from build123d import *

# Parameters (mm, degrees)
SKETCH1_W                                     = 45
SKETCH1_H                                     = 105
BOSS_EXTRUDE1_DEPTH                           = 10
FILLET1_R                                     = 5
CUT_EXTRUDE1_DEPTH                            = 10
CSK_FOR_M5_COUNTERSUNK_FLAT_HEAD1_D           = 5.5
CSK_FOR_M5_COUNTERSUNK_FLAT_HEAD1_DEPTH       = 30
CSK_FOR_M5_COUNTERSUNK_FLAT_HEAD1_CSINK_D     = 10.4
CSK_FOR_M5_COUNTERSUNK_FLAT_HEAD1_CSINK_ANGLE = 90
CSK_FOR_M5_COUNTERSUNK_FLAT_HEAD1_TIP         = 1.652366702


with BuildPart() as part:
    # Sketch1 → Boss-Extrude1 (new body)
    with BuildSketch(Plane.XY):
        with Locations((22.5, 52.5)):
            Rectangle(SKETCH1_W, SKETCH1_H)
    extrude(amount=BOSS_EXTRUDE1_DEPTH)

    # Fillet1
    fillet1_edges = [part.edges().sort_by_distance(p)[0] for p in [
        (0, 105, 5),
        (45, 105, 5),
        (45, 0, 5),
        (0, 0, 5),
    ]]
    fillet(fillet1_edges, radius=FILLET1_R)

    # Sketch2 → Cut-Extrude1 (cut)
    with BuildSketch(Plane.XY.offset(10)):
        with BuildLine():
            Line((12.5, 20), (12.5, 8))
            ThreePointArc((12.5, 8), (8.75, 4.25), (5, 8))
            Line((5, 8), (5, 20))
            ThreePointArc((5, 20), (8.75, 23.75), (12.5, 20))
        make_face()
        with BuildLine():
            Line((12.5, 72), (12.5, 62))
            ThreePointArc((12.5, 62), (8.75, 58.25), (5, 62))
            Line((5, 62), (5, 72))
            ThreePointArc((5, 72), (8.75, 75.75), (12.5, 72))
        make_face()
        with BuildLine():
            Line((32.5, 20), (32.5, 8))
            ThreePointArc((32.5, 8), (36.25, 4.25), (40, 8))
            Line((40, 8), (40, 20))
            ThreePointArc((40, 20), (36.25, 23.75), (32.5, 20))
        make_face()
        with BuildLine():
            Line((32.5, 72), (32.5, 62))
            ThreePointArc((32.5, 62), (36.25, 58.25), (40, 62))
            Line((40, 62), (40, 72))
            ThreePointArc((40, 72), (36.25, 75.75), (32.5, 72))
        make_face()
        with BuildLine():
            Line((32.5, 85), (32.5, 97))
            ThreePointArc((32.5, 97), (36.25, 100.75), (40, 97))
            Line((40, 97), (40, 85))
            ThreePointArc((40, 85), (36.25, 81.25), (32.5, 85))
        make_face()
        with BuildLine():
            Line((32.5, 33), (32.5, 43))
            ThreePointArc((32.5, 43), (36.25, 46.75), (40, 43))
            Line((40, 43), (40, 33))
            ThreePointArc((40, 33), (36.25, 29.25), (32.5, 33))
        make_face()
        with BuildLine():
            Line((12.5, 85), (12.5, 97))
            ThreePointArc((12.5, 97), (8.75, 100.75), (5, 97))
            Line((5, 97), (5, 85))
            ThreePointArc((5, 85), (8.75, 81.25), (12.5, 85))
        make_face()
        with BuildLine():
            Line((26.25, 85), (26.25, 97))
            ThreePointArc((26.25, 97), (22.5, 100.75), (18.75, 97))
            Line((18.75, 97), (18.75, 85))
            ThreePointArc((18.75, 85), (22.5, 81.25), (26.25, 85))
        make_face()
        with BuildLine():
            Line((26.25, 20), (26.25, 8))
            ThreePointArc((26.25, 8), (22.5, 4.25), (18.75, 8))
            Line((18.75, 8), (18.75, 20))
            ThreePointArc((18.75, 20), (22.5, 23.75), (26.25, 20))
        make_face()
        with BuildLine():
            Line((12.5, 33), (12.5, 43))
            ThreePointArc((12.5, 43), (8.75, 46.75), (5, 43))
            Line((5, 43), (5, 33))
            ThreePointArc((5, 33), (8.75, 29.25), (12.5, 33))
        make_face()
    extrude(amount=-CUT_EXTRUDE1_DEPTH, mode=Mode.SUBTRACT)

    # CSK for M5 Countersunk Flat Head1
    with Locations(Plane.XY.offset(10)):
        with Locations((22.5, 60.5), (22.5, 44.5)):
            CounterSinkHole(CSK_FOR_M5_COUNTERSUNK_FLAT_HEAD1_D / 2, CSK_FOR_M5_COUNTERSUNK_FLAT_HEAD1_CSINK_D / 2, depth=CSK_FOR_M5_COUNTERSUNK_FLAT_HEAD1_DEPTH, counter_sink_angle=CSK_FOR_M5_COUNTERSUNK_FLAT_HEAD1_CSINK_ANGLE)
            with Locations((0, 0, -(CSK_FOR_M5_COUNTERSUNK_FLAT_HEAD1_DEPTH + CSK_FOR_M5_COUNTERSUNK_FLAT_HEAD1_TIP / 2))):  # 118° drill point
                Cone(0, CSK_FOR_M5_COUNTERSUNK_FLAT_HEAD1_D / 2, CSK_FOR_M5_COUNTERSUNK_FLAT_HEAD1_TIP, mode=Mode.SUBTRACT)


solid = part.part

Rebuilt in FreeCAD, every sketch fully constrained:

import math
import FreeCAD as App
import Part
import Sketcher
Q = App.Units.Quantity


def edges_at(feature, points):
    """Names of the edges that pass closest to the given points."""
    edges = feature.Shape.Edges
    near = lambda p: min(range(len(edges)), key=lambda i: edges[i].distToShape(Part.Vertex(*p))[0])
    return sorted({f"Edge{near(p) + 1}" for p in points})

doc = App.newDocument("Part")
body = doc.addObject("PartDesign::Body", "Body")

sketch1 = body.newObject("Sketcher::SketchObject", "Sketch")
sketch1.AttachmentSupport = (doc.getObject("XY_Plane"), [""])
sketch1.MapMode = "FlatFace"
sketch1.addGeometry(Part.LineSegment(App.Vector(0, 105, 0), App.Vector(0, 0, 0)), False)
sketch1.addGeometry(Part.LineSegment(App.Vector(0, 0, 0), App.Vector(45, 0, 0)), False)
sketch1.addGeometry(Part.LineSegment(App.Vector(45, 0, 0), App.Vector(45, 105, 0)), False)
sketch1.addGeometry(Part.LineSegment(App.Vector(45, 105, 0), App.Vector(0, 105, 0)), False)
sketch1.addConstraint(Sketcher.Constraint("Coincident", 0, 2, 1, 1))
sketch1.addConstraint(Sketcher.Constraint("Coincident", 1, 2, 2, 1))
sketch1.addConstraint(Sketcher.Constraint("Coincident", 2, 2, 3, 1))
sketch1.addConstraint(Sketcher.Constraint("Coincident", 3, 2, 0, 1))
sketch1.addConstraint(Sketcher.Constraint("Vertical", 0))
sketch1.addConstraint(Sketcher.Constraint("Horizontal", 1))
sketch1.addConstraint(Sketcher.Constraint("Vertical", 2))
sketch1.addConstraint(Sketcher.Constraint("Horizontal", 3))
sketch1.addConstraint(Sketcher.Constraint("Coincident", 0, 2, -1, 1))
sketch1.addConstraint(Sketcher.Constraint("DistanceX", 1, 1, 1, 2, Q("45 mm")))
sketch1.addConstraint(Sketcher.Constraint("DistanceY", 0, 2, 0, 1, Q("105 mm")))
pad1 = body.newObject("PartDesign::Pad", "Pad")
pad1.Profile = sketch1
pad1.Length = 10
doc.recompute()

fillet = body.newObject("PartDesign::Fillet", "Fillet")
fillet.Base = (pad1, edges_at(pad1, [
    (0, 105, 5),
    (45, 105, 5),
    (45, 0, 5),
    (0, 0, 5),
]))
fillet.Radius = 5

sketch2 = body.newObject("Sketcher::SketchObject", "Sketch001")
sketch2.AttachmentSupport = (doc.getObject("XY_Plane"), [""])
sketch2.MapMode = "FlatFace"
sketch2.AttachmentOffset = App.Placement(App.Vector(0, 0, 10), App.Rotation())
sketch2.addGeometry(Part.LineSegment(App.Vector(12.5, 8, 0), App.Vector(12.5, 20, 0)), False)
sketch2.addGeometry(Part.ArcOfCircle(Part.Circle(App.Vector(8.8, 20, 0), App.Vector(0, 0, 1), 3.8), math.radians(0), math.radians(180)), False)
sketch2.addGeometry(Part.LineSegment(App.Vector(5, 20, 0), App.Vector(5, 8, 0)), False)
sketch2.addGeometry(Part.ArcOfCircle(Part.Circle(App.Vector(8.8, 8, 0), App.Vector(0, 0, 1), 3.8), math.radians(180), math.radians(360)), False)
sketch2.addGeometry(Part.LineSegment(App.Vector(12.5, 62, 0), App.Vector(12.5, 72, 0)), False)
sketch2.addGeometry(Part.ArcOfCircle(Part.Circle(App.Vector(8.8, 72, 0), App.Vector(0, 0, 1), 3.8), math.radians(0), math.radians(180)), False)
sketch2.addGeometry(Part.LineSegment(App.Vector(5, 72, 0), App.Vector(5, 62, 0)), False)
sketch2.addGeometry(Part.ArcOfCircle(Part.Circle(App.Vector(8.8, 62, 0), App.Vector(0, 0, 1), 3.8), math.radians(180), math.radians(360)), False)
sketch2.addGeometry(Part.LineSegment(App.Vector(32.5, 20, 0), App.Vector(32.5, 8, 0)), False)
sketch2.addGeometry(Part.ArcOfCircle(Part.Circle(App.Vector(36.2, 8, 0), App.Vector(0, 0, 1), 3.8), math.radians(180), math.radians(360)), False)
sketch2.addGeometry(Part.LineSegment(App.Vector(40, 8, 0), App.Vector(40, 20, 0)), False)
sketch2.addGeometry(Part.ArcOfCircle(Part.Circle(App.Vector(36.2, 20, 0), App.Vector(0, 0, 1), 3.8), math.radians(0), math.radians(180)), False)
sketch2.addGeometry(Part.LineSegment(App.Vector(32.5, 72, 0), App.Vector(32.5, 62, 0)), False)
sketch2.addGeometry(Part.ArcOfCircle(Part.Circle(App.Vector(36.2, 62, 0), App.Vector(0, 0, 1), 3.8), math.radians(180), math.radians(360)), False)
sketch2.addGeometry(Part.LineSegment(App.Vector(40, 62, 0), App.Vector(40, 72, 0)), False)
sketch2.addGeometry(Part.ArcOfCircle(Part.Circle(App.Vector(36.2, 72, 0), App.Vector(0, 0, 1), 3.8), math.radians(0), math.radians(180)), False)
sketch2.addGeometry(Part.LineSegment(App.Vector(32.5, 97, 0), App.Vector(32.5, 85, 0)), False)
sketch2.addGeometry(Part.ArcOfCircle(Part.Circle(App.Vector(36.2, 85, 0), App.Vector(0, 0, 1), 3.8), math.radians(180), math.radians(360)), False)
sketch2.addGeometry(Part.LineSegment(App.Vector(40, 85, 0), App.Vector(40, 97, 0)), False)
sketch2.addGeometry(Part.ArcOfCircle(Part.Circle(App.Vector(36.2, 97, 0), App.Vector(0, 0, 1), 3.8), math.radians(0), math.radians(180)), False)
sketch2.addGeometry(Part.LineSegment(App.Vector(32.5, 43, 0), App.Vector(32.5, 33, 0)), False)
sketch2.addGeometry(Part.ArcOfCircle(Part.Circle(App.Vector(36.2, 33, 0), App.Vector(0, 0, 1), 3.8), math.radians(180), math.radians(360)), False)
sketch2.addGeometry(Part.LineSegment(App.Vector(40, 33, 0), App.Vector(40, 43, 0)), False)
sketch2.addGeometry(Part.ArcOfCircle(Part.Circle(App.Vector(36.2, 43, 0), App.Vector(0, 0, 1), 3.8), math.radians(0), math.radians(180)), False)
sketch2.addGeometry(Part.LineSegment(App.Vector(12.5, 85, 0), App.Vector(12.5, 97, 0)), False)
sketch2.addGeometry(Part.ArcOfCircle(Part.Circle(App.Vector(8.8, 97, 0), App.Vector(0, 0, 1), 3.8), math.radians(0), math.radians(180)), False)
sketch2.addGeometry(Part.LineSegment(App.Vector(5, 97, 0), App.Vector(5, 85, 0)), False)
sketch2.addGeometry(Part.ArcOfCircle(Part.Circle(App.Vector(8.8, 85, 0), App.Vector(0, 0, 1), 3.8), math.radians(180), math.radians(360)), False)
sketch2.addGeometry(Part.LineSegment(App.Vector(26.2, 85, 0), App.Vector(26.2, 97, 0)), False)
sketch2.addGeometry(Part.ArcOfCircle(Part.Circle(App.Vector(22.5, 97, 0), App.Vector(0, 0, 1), 3.8), math.radians(0), math.radians(180)), False)
sketch2.addGeometry(Part.LineSegment(App.Vector(18.8, 97, 0), App.Vector(18.8, 85, 0)), False)
sketch2.addGeometry(Part.ArcOfCircle(Part.Circle(App.Vector(22.5, 85, 0), App.Vector(0, 0, 1), 3.8), math.radians(180), math.radians(360)), False)
sketch2.addGeometry(Part.LineSegment(App.Vector(26.2, 8, 0), App.Vector(26.2, 20, 0)), False)
sketch2.addGeometry(Part.ArcOfCircle(Part.Circle(App.Vector(22.5, 20, 0), App.Vector(0, 0, 1), 3.8), math.radians(0), math.radians(180)), False)
sketch2.addGeometry(Part.LineSegment(App.Vector(18.8, 20, 0), App.Vector(18.8, 8, 0)), False)
sketch2.addGeometry(Part.ArcOfCircle(Part.Circle(App.Vector(22.5, 8, 0), App.Vector(0, 0, 1), 3.8), math.radians(180), math.radians(360)), False)
sketch2.addGeometry(Part.LineSegment(App.Vector(12.5, 33, 0), App.Vector(12.5, 43, 0)), False)
sketch2.addGeometry(Part.ArcOfCircle(Part.Circle(App.Vector(8.8, 43, 0), App.Vector(0, 0, 1), 3.8), math.radians(0), math.radians(180)), False)
sketch2.addGeometry(Part.LineSegment(App.Vector(5, 43, 0), App.Vector(5, 33, 0)), False)
sketch2.addGeometry(Part.ArcOfCircle(Part.Circle(App.Vector(8.8, 33, 0), App.Vector(0, 0, 1), 3.8), math.radians(180), math.radians(360)), False)
sketch2.addConstraint(Sketcher.Constraint("Tangent", 0, 2, 1, 1))
sketch2.addConstraint(Sketcher.Constraint("Tangent", 1, 2, 2, 1))
sketch2.addConstraint(Sketcher.Constraint("Tangent", 2, 2, 3, 1))
sketch2.addConstraint(Sketcher.Constraint("Tangent", 3, 2, 0, 1))
sketch2.addConstraint(Sketcher.Constraint("Tangent", 4, 2, 5, 1))
sketch2.addConstraint(Sketcher.Constraint("Tangent", 5, 2, 6, 1))
sketch2.addConstraint(Sketcher.Constraint("Tangent", 6, 2, 7, 1))
sketch2.addConstraint(Sketcher.Constraint("Tangent", 7, 2, 4, 1))
sketch2.addConstraint(Sketcher.Constraint("Tangent", 8, 2, 9, 1))
sketch2.addConstraint(Sketcher.Constraint("Tangent", 9, 2, 10, 1))
sketch2.addConstraint(Sketcher.Constraint("Tangent", 10, 2, 11, 1))
sketch2.addConstraint(Sketcher.Constraint("Tangent", 11, 2, 8, 1))
sketch2.addConstraint(Sketcher.Constraint("Tangent", 12, 2, 13, 1))
sketch2.addConstraint(Sketcher.Constraint("Tangent", 13, 2, 14, 1))
sketch2.addConstraint(Sketcher.Constraint("Tangent", 14, 2, 15, 1))
sketch2.addConstraint(Sketcher.Constraint("Tangent", 15, 2, 12, 1))
sketch2.addConstraint(Sketcher.Constraint("Tangent", 16, 2, 17, 1))
sketch2.addConstraint(Sketcher.Constraint("Tangent", 17, 2, 18, 1))
sketch2.addConstraint(Sketcher.Constraint("Tangent", 18, 2, 19, 1))
sketch2.addConstraint(Sketcher.Constraint("Tangent", 19, 2, 16, 1))
sketch2.addConstraint(Sketcher.Constraint("Tangent", 20, 2, 21, 1))
sketch2.addConstraint(Sketcher.Constraint("Tangent", 21, 2, 22, 1))
sketch2.addConstraint(Sketcher.Constraint("Tangent", 22, 2, 23, 1))
sketch2.addConstraint(Sketcher.Constraint("Tangent", 23, 2, 20, 1))
sketch2.addConstraint(Sketcher.Constraint("Tangent", 24, 2, 25, 1))
sketch2.addConstraint(Sketcher.Constraint("Tangent", 25, 2, 26, 1))
sketch2.addConstraint(Sketcher.Constraint("Tangent", 26, 2, 27, 1))
sketch2.addConstraint(Sketcher.Constraint("Tangent", 27, 2, 24, 1))
sketch2.addConstraint(Sketcher.Constraint("Tangent", 28, 2, 29, 1))
sketch2.addConstraint(Sketcher.Constraint("Tangent", 29, 2, 30, 1))
sketch2.addConstraint(Sketcher.Constraint("Tangent", 30, 2, 31, 1))
sketch2.addConstraint(Sketcher.Constraint("Tangent", 31, 2, 28, 1))
sketch2.addConstraint(Sketcher.Constraint("Tangent", 32, 2, 33, 1))
sketch2.addConstraint(Sketcher.Constraint("Tangent", 33, 2, 34, 1))
sketch2.addConstraint(Sketcher.Constraint("Tangent", 34, 2, 35, 1))
sketch2.addConstraint(Sketcher.Constraint("Tangent", 35, 2, 32, 1))
sketch2.addConstraint(Sketcher.Constraint("Tangent", 36, 2, 37, 1))
sketch2.addConstraint(Sketcher.Constraint("Tangent", 37, 2, 38, 1))
sketch2.addConstraint(Sketcher.Constraint("Tangent", 38, 2, 39, 1))
sketch2.addConstraint(Sketcher.Constraint("Tangent", 39, 2, 36, 1))
sketch2.addConstraint(Sketcher.Constraint("Vertical", 0))
sketch2.addConstraint(Sketcher.Constraint("Vertical", 2))
sketch2.addConstraint(Sketcher.Constraint("Vertical", 4))
sketch2.addConstraint(Sketcher.Constraint("Vertical", 6))
sketch2.addConstraint(Sketcher.Constraint("Vertical", 8))
sketch2.addConstraint(Sketcher.Constraint("Vertical", 10))
sketch2.addConstraint(Sketcher.Constraint("Vertical", 12))
sketch2.addConstraint(Sketcher.Constraint("Vertical", 14))
sketch2.addConstraint(Sketcher.Constraint("Vertical", 16))
sketch2.addConstraint(Sketcher.Constraint("Vertical", 18))
sketch2.addConstraint(Sketcher.Constraint("Vertical", 20))
sketch2.addConstraint(Sketcher.Constraint("Vertical", 22))
sketch2.addConstraint(Sketcher.Constraint("Vertical", 24))
sketch2.addConstraint(Sketcher.Constraint("Vertical", 26))
sketch2.addConstraint(Sketcher.Constraint("Vertical", 28))
sketch2.addConstraint(Sketcher.Constraint("Vertical", 30))
sketch2.addConstraint(Sketcher.Constraint("Vertical", 32))
sketch2.addConstraint(Sketcher.Constraint("Vertical", 34))
sketch2.addConstraint(Sketcher.Constraint("Vertical", 36))
sketch2.addConstraint(Sketcher.Constraint("Vertical", 38))
sketch2.addConstraint(Sketcher.Constraint("Equal", 3, 5))
sketch2.addConstraint(Sketcher.Constraint("Equal", 7, 9))
sketch2.addConstraint(Sketcher.Constraint("Equal", 11, 13))
sketch2.addConstraint(Sketcher.Constraint("Equal", 15, 17))
sketch2.addConstraint(Sketcher.Constraint("Equal", 19, 21))
sketch2.addConstraint(Sketcher.Constraint("Equal", 23, 25))
sketch2.addConstraint(Sketcher.Constraint("Equal", 27, 29))
sketch2.addConstraint(Sketcher.Constraint("Equal", 31, 33))
sketch2.addConstraint(Sketcher.Constraint("Equal", 35, 37))
sketch2.addConstraint(Sketcher.Constraint("Horizontal", 3, 3, 9, 3))
sketch2.addConstraint(Sketcher.Constraint("Horizontal", 1, 3, 11, 3))
sketch2.addConstraint(Sketcher.Constraint("Horizontal", 7, 3, 13, 3))
sketch2.addConstraint(Sketcher.Constraint("Horizontal", 5, 3, 15, 3))
sketch2.addConstraint(Sketcher.Constraint("Horizontal", 19, 3, 25, 3))
sketch2.addConstraint(Sketcher.Constraint("Horizontal", 17, 3, 27, 3))
sketch2.addConstraint(Sketcher.Constraint("Horizontal", 25, 3, 29, 3))
sketch2.addConstraint(Sketcher.Constraint("Horizontal", 27, 3, 31, 3))
sketch2.addConstraint(Sketcher.Constraint("Horizontal", 11, 3, 33, 3))
sketch2.addConstraint(Sketcher.Constraint("Horizontal", 9, 3, 35, 3))
sketch2.addConstraint(Sketcher.Constraint("Horizontal", 23, 3, 37, 3))
sketch2.addConstraint(Sketcher.Constraint("Horizontal", 21, 3, 39, 3))
sketch2.addConstraint(Sketcher.Constraint("Vertical", 3, 3, 5, 3))
sketch2.addConstraint(Sketcher.Constraint("Vertical", 11, 3, 13, 3))
sketch2.addConstraint(Sketcher.Constraint("Vertical", 15, 3, 17, 3))
sketch2.addConstraint(Sketcher.Constraint("Vertical", 19, 3, 21, 3))
sketch2.addConstraint(Sketcher.Constraint("Vertical", 7, 3, 25, 3))
sketch2.addConstraint(Sketcher.Constraint("Vertical", 31, 3, 33, 3))
sketch2.addConstraint(Sketcher.Constraint("Vertical", 27, 3, 37, 3))
sketch2.addConstraint(Sketcher.Constraint("Equal", 10, 16))
sketch2.addConstraint(Sketcher.Constraint("Equal", 14, 20))
sketch2.addConstraint(Sketcher.Constraint("DistanceY", 0, 1, 0, 2, Q("12 mm")))
sketch2.addConstraint(Sketcher.Constraint("DistanceY", 4, 1, 4, 2, Q("10 mm")))
sketch2.addConstraint(Sketcher.Constraint("Radius", 1, Q("3.75 mm")))
sketch2.addConstraint(Sketcher.Constraint("DistanceY", -1, 1, 1, 3, Q("20 mm")))
sketch2.addConstraint(Sketcher.Constraint("DistanceY", -1, 1, 5, 3, Q("72 mm")))
sketch2.addConstraint(Sketcher.Constraint("DistanceY", -1, 1, 17, 3, Q("85 mm")))
sketch2.addConstraint(Sketcher.Constraint("DistanceY", -1, 1, 21, 3, Q("33 mm")))
sketch2.addConstraint(Sketcher.Constraint("DistanceX", -1, 1, 1, 2, Q("5 mm")))
sketch2.addConstraint(Sketcher.Constraint("DistanceX", -1, 1, 9, 2, Q("40 mm")))
sketch2.addConstraint(Sketcher.Constraint("DistanceX", 0, 2, 33, 3, Q("10 mm")))
pocket1 = body.newObject("PartDesign::Pocket", "Pocket")
pocket1.Profile = sketch2
pocket1.Length = 10

sketch3 = body.newObject("Sketcher::SketchObject", "Sketch002")
sketch3.AttachmentSupport = (doc.getObject("XY_Plane"), [""])
sketch3.MapMode = "FlatFace"
sketch3.AttachmentOffset = App.Placement(App.Vector(0, 0, 10), App.Rotation())
sketch3.addGeometry(Part.Circle(App.Vector(22.5, 60.5, 0), App.Vector(0, 0, 1), 2.8), False)
sketch3.addGeometry(Part.Circle(App.Vector(22.5, 44.5, 0), App.Vector(0, 0, 1), 2.8), False)
sketch3.addConstraint(Sketcher.Constraint("Equal", 0, 1))
sketch3.addConstraint(Sketcher.Constraint("Vertical", 0, 3, 1, 3))
sketch3.addConstraint(Sketcher.Constraint("Diameter", 0, Q("5.5 mm")))
sketch3.addConstraint(Sketcher.Constraint("DistanceY", 1, 3, 0, 3, Q("16 mm")))
sketch3.addConstraint(Sketcher.Constraint("DistanceX", -1, 1, 0, 3, Q("22.5 mm")))
sketch3.addConstraint(Sketcher.Constraint("DistanceY", -1, 1, 0, 3, Q("60.5 mm")))
doc.recompute()
hole = body.newObject("PartDesign::Hole", "Hole")
hole.Profile = sketch3
hole.ThreadType = "None"
hole.Diameter = 5.5
hole.DepthType = "Dimension"
hole.Depth = 30
hole.DrillPoint = "Angled"
hole.DrillPointAngle = 118
hole.HoleCutType = "Countersink"
hole.HoleCutDiameter = 10.4
hole.HoleCutCountersinkAngle = 90

doc.recompute()
